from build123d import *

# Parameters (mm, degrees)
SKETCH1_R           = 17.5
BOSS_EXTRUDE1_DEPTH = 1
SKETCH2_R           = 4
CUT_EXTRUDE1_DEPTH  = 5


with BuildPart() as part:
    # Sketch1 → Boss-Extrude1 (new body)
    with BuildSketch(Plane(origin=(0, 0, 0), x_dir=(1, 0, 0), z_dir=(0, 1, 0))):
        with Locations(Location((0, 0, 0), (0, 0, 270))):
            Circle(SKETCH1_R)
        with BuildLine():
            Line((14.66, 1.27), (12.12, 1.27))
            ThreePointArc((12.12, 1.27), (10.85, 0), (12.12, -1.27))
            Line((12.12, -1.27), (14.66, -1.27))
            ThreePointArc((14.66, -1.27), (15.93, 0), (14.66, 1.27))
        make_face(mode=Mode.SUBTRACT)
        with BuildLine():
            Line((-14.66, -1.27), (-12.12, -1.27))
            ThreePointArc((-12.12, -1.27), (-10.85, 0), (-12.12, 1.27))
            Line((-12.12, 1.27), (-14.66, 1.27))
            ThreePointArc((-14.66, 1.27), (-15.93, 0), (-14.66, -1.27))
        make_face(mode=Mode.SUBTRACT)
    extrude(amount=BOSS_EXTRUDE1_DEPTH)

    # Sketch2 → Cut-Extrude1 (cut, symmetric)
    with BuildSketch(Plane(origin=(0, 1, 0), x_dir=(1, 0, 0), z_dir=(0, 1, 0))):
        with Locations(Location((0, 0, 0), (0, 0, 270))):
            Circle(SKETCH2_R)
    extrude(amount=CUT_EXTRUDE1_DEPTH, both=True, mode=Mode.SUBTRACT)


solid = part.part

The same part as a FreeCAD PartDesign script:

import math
import FreeCAD as App
import Part
import Sketcher
Q = App.Units.Quantity

doc = App.newDocument("Part")
body = doc.addObject("PartDesign::Body", "Body")

# Sketch on XZ plane
sketch1 = doc.addObject("Sketcher::SketchObject", "Sketch")
body.addObject(sketch1)
sketch1.AttachmentSupport = (doc.XZ_Plane, [""])
sketch1.MapMode = "FlatFace"
sketch1.addGeometry([
    Part.Circle(App.Vector(0, 0, 0), App.Vector(0, 0, 1), 17.5),  # 0
    Part.LineSegment(App.Vector(-12.1, 1.3, 0), App.Vector(-14.7, 1.3, 0)),  # 1
    Part.ArcOfCircle(Part.Circle(App.Vector(-14.7, 0, 0), App.Vector(0, 0, 1), 1.3), math.radians(90), math.radians(270)),  # 2
    Part.LineSegment(App.Vector(-14.7, -1.3, 0), App.Vector(-12.1, -1.3, 0)),  # 3
    Part.ArcOfCircle(Part.Circle(App.Vector(-12.1, 0, 0), App.Vector(0, 0, 1), 1.3), math.radians(-90), math.radians(90)),  # 4
    Part.LineSegment(App.Vector(12.1, -1.3, 0), App.Vector(14.7, -1.3, 0)),  # 5
    Part.ArcOfCircle(Part.Circle(App.Vector(14.7, 0, 0), App.Vector(0, 0, 1), 1.3), math.radians(-90), math.radians(90)),  # 6
    Part.LineSegment(App.Vector(14.7, 1.3, 0), App.Vector(12.1, 1.3, 0)),  # 7
    Part.ArcOfCircle(Part.Circle(App.Vector(12.1, 0, 0), App.Vector(0, 0, 1), 1.3), math.radians(90), math.radians(270)),  # 8
], False)
sketch1.addConstraint([
    Sketcher.Constraint("Tangent", 1, 2, 2, 1),
    Sketcher.Constraint("Tangent", 2, 2, 3, 1),
    Sketcher.Constraint("Tangent", 3, 2, 4, 1),
    Sketcher.Constraint("Tangent", 4, 2, 1, 1),
    Sketcher.Constraint("Tangent", 5, 2, 6, 1),
    Sketcher.Constraint("Tangent", 6, 2, 7, 1),
    Sketcher.Constraint("Tangent", 7, 2, 8, 1),
    Sketcher.Constraint("Tangent", 8, 2, 5, 1),
    Sketcher.Constraint("Horizontal", 1),
    Sketcher.Constraint("Horizontal", 3),
    Sketcher.Constraint("Horizontal", 5),
    Sketcher.Constraint("Horizontal", 7),
    Sketcher.Constraint("Coincident", 0, 3, -1, 1),
    Sketcher.Constraint("Equal", 4, 6),
    Sketcher.Constraint("Symmetric", 2, 3, 6, 3, -1, 1),
    Sketcher.Constraint("Symmetric", 4, 3, 8, 3, -2),
    Sketcher.Constraint("Diameter", 0, Q("35 mm")),
    Sketcher.Constraint("Radius", 2, Q("1.27 mm")),
    Sketcher.Constraint("DistanceX", 1, 2, 1, 1, Q("2.54 mm")),
    Sketcher.Constraint("DistanceX", 2, 3, -1, 1, Q("14.66 mm")),
])
pad1 = doc.addObject("PartDesign::Pad", "Pad")
body.addObject(pad1)
pad1.Profile = sketch1
pad1.Length = 1
pad1.Reversed = True

# Sketch on XZ plane
sketch2 = doc.addObject("Sketcher::SketchObject", "Sketch001")
body.addObject(sketch2)
sketch2.AttachmentSupport = (doc.XZ_Plane, [""])
sketch2.MapMode = "FlatFace"
sketch2.AttachmentOffset = App.Placement(App.Vector(0, 0, -1), App.Rotation())
sketch2.addGeometry(Part.Circle(App.Vector(0, 0, 0), App.Vector(0, 0, 1), 4), False)
sketch2.addConstraint([
    Sketcher.Constraint("Coincident", 0, 3, -1, 1),
    Sketcher.Constraint("Diameter", 0, Q("8 mm")),
])
pocket1 = doc.addObject("PartDesign::Pocket", "Pocket")
body.addObject(pocket1)
pocket1.Profile = sketch2
pocket1.Length = 10
pocket1.Midplane = True

doc.recompute()
